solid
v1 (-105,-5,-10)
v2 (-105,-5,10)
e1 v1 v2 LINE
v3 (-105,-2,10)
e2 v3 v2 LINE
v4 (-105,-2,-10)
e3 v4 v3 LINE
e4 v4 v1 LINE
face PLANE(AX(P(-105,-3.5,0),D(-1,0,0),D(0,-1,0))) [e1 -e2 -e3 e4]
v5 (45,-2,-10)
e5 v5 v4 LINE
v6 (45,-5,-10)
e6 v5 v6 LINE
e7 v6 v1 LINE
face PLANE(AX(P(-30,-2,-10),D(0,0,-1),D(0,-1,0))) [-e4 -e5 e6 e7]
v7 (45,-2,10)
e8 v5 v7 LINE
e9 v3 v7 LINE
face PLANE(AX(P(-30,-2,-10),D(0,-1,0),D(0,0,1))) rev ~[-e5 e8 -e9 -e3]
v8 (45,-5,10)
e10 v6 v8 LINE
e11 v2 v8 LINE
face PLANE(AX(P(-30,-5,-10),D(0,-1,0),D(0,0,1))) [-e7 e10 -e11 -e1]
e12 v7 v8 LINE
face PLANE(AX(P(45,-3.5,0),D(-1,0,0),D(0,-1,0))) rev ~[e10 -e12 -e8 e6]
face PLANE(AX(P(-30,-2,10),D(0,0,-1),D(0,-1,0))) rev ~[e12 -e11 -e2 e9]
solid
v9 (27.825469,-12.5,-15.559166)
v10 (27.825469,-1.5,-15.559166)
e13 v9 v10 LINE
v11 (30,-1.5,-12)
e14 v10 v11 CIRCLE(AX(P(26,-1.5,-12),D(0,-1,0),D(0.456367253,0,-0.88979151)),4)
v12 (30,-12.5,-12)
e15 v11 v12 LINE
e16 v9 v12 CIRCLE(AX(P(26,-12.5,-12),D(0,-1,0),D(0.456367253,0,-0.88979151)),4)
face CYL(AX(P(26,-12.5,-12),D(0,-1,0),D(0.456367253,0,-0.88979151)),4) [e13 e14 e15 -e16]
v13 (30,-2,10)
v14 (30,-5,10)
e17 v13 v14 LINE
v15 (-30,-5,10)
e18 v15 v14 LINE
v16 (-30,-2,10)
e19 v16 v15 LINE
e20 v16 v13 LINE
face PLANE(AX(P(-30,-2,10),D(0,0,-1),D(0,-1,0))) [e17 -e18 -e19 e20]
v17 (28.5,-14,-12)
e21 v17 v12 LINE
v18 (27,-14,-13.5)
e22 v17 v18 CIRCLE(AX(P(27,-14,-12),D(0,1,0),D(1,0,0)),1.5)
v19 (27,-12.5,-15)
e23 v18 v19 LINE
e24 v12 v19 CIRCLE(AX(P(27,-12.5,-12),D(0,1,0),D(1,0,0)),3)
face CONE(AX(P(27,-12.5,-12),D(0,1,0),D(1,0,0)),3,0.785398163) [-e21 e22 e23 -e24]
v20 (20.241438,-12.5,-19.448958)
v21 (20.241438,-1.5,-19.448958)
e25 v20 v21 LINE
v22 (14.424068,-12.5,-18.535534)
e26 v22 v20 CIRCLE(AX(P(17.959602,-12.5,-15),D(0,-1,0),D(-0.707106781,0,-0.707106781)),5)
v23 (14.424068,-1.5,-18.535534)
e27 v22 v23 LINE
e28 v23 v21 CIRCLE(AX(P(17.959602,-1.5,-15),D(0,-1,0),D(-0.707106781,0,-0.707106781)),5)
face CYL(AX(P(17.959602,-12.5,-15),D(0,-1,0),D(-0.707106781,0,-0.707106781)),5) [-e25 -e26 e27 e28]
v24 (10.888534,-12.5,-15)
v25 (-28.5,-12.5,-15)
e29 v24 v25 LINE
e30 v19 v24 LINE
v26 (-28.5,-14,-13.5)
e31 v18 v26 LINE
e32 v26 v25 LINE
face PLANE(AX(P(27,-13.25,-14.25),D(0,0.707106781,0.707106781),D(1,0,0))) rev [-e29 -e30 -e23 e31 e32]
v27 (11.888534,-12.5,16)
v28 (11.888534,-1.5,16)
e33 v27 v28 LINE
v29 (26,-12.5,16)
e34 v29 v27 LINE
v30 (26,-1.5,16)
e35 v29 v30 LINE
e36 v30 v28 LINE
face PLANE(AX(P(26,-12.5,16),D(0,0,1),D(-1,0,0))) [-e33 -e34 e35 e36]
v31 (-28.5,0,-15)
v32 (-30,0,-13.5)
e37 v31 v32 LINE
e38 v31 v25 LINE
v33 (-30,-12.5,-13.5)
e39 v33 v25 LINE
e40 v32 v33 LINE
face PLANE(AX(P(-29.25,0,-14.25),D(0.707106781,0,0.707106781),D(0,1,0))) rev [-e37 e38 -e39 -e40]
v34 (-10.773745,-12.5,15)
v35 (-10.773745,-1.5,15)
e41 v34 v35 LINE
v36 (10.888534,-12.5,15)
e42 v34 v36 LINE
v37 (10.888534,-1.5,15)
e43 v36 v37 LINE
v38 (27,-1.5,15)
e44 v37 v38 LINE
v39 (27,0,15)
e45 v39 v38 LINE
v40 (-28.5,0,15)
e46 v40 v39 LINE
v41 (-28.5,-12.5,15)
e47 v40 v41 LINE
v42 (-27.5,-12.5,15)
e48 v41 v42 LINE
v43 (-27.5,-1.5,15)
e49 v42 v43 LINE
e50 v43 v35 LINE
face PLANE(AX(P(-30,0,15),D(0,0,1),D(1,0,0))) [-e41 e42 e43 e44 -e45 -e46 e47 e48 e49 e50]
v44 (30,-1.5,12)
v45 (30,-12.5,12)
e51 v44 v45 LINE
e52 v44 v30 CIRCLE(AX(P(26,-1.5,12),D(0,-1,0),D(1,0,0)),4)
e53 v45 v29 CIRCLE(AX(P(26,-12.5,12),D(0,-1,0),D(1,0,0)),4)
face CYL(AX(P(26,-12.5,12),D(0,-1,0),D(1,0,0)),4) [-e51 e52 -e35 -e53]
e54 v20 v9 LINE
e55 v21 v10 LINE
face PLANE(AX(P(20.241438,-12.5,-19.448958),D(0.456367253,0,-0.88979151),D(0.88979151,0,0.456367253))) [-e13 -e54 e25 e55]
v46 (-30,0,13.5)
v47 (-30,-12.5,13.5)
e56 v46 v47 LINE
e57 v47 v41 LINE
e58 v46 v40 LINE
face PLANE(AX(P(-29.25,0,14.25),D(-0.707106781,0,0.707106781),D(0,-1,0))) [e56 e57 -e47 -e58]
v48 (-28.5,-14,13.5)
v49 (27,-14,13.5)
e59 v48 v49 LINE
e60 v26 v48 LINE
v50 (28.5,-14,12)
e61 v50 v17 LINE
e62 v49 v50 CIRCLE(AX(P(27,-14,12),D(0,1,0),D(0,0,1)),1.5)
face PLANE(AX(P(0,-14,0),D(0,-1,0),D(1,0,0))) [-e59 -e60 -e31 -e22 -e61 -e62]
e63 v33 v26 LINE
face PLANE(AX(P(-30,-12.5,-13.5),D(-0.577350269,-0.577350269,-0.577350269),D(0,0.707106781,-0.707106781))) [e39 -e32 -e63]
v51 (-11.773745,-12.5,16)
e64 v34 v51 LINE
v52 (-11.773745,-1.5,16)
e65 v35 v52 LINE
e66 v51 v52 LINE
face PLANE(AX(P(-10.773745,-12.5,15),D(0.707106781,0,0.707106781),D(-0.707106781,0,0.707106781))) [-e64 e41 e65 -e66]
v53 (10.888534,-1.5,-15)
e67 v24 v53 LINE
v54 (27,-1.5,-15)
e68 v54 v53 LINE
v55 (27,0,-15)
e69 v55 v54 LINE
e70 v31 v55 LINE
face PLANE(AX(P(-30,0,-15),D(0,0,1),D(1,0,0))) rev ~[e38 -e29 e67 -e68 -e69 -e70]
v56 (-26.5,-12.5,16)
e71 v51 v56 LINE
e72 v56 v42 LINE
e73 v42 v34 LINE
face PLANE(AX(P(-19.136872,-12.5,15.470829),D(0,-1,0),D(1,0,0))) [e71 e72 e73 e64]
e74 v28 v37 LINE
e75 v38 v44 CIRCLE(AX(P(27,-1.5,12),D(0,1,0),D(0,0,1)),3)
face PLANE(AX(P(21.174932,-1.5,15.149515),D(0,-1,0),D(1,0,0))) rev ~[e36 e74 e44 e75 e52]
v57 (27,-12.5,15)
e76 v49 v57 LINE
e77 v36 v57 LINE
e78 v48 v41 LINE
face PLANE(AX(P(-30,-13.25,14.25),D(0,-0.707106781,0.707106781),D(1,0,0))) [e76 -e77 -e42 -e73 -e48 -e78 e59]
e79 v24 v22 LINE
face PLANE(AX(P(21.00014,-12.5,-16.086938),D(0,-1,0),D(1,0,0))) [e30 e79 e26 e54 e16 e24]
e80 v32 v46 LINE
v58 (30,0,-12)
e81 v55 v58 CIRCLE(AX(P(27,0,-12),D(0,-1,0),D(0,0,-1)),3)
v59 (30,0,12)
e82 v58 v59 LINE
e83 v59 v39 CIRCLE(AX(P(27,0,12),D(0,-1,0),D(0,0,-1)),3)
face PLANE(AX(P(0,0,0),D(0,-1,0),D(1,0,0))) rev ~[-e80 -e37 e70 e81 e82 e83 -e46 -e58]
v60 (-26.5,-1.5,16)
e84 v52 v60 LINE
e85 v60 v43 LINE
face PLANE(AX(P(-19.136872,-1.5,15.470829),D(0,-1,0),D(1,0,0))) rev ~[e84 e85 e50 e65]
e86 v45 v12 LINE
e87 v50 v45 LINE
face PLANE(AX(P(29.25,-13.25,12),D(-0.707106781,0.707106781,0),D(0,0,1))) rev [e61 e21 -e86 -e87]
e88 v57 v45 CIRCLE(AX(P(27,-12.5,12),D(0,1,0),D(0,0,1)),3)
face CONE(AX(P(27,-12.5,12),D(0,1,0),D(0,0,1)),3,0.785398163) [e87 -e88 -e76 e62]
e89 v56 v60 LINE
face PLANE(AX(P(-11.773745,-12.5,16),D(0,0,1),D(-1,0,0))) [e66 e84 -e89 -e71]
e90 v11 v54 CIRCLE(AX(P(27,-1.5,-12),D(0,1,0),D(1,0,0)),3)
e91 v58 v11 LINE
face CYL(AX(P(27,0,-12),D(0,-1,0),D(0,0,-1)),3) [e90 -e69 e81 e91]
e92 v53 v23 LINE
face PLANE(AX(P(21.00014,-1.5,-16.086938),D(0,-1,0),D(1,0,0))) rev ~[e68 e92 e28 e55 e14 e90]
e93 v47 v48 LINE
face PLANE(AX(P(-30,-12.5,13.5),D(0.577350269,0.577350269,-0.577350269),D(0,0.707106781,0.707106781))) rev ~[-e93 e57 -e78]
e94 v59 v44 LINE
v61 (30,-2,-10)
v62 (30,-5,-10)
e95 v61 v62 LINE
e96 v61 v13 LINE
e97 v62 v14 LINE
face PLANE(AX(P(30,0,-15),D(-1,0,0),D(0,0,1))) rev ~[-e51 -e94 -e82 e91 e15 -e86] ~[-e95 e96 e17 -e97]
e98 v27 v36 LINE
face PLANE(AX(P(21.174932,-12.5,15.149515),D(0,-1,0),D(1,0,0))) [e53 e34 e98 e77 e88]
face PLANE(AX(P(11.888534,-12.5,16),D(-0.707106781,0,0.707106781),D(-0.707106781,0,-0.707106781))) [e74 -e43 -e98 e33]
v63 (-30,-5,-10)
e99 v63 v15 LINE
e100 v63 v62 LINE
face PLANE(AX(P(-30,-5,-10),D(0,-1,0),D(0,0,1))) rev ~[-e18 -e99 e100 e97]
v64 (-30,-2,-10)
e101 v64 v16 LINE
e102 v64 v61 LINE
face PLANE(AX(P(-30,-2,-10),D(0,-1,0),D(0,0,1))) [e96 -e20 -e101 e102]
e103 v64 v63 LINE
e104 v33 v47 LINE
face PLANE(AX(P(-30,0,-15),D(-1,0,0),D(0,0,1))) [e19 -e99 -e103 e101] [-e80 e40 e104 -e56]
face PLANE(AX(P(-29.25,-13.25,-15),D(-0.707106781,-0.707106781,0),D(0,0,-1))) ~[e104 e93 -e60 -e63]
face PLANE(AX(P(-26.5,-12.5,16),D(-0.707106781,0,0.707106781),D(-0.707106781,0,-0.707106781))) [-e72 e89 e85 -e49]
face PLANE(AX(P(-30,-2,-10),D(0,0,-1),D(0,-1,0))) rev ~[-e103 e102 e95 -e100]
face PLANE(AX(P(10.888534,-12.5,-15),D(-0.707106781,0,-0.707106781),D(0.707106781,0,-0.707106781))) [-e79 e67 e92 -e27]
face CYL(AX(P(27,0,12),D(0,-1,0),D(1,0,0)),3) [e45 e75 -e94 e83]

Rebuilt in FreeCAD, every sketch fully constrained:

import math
import FreeCAD as App
import Part
import Sketcher

V = App.Vector
Q = App.Units.Quantity


def edges_at(feature, points):
    """Names of the edges that pass closest to the given points."""
    edges = feature.Shape.Edges
    near = lambda p: min(range(len(edges)), key=lambda i: edges[i].distToShape(Part.Vertex(*p))[0])
    return sorted({f"Edge{near(p) + 1}" for p in points})

doc = App.newDocument("Part")
params = doc.addObject("Spreadsheet::Sheet", "Params")
for row, (alias, value) in enumerate([
    ("sketch1_width", "60 mm"),
    ("sketch1_height", "30 mm"),
    ("pad1_length", "14 mm"),
    ("fillet_radius", "3 mm"),
    ("chamfer_size", "1.5 mm"),
    ("sketch2_radius", "3 mm"),
    ("sketch2_radius2", "5 mm"),
    ("sketch2_radius3", "4 mm"),
    ("pad2_length", "11 mm"),
    ("sketch3_width", "3 mm"),
    ("sketch3_height", "20 mm"),
    ("sketch4_width", "3 mm"),
    ("sketch4_height", "20 mm"),
    ("pad3_length", "150 mm"),
], start=1):
    params.set(f"A{row}", alias)
    params.set(f"B{row}", "=" + value)
    params.setAlias(f"B{row}", alias)

body = doc.addObject("PartDesign::Body", "Body")

sketch1 = body.newObject("Sketcher::SketchObject", "Sketch")
sketch1.AttachmentSupport = (doc.getObject("XZ_Plane"), [""])
sketch1.MapMode = "FlatFace"
sketch1.addGeometry(Part.LineSegment(V(-30, 15, 0), V(-30, -15, 0)), False)
sketch1.addGeometry(Part.LineSegment(V(-30, -15, 0), V(30, -15, 0)), False)
sketch1.addGeometry(Part.LineSegment(V(30, -15, 0), V(30, 15, 0)), False)
sketch1.addGeometry(Part.LineSegment(V(30, 15, 0), V(-30, 15, 0)), False)
sketch1.addConstraint(Sketcher.Constraint("Coincident", 0, 2, 1, 1))
sketch1.addConstraint(Sketcher.Constraint("Coincident", 1, 2, 2, 1))
sketch1.addConstraint(Sketcher.Constraint("Coincident", 2, 2, 3, 1))
sketch1.addConstraint(Sketcher.Constraint("Coincident", 3, 2, 0, 1))
sketch1.addConstraint(Sketcher.Constraint("Vertical", 0))
sketch1.addConstraint(Sketcher.Constraint("Horizontal", 1))
sketch1.addConstraint(Sketcher.Constraint("Vertical", 2))
sketch1.addConstraint(Sketcher.Constraint("Horizontal", 3))
sketch1.addConstraint(Sketcher.Constraint("Symmetric", 0, 2, 2, 2, -1, 1))
sketch1.addConstraint(Sketcher.Constraint("DistanceX", 1, 1, 1, 2, Q("60 mm")))
sketch1.addConstraint(Sketcher.Constraint("DistanceY", 0, 2, 0, 1, Q("30 mm")))
sketch1.setExpression("Constraints[9]", "Params.sketch1_width")
sketch1.setExpression("Constraints[10]", "Params.sketch1_height")
pad1 = body.newObject("PartDesign::Pad", "Pad")
pad1.Profile = sketch1
pad1.setExpression("Length", "Params.pad1_length")
doc.recompute()

fillet = body.newObject("PartDesign::Fillet", "Fillet")
fillet.Base = (pad1, edges_at(pad1, [(30, -7, -15), (30, -7, 15)]))
fillet.setExpression("Radius", "Params.fillet_radius")
doc.recompute()

chamfer = body.newObject("PartDesign::Chamfer", "Chamfer")
chamfer.Base = (fillet, edges_at(fillet, [
    (-1.5, -14, 15),
    (29.121, -14, 14.121),
    (30, -14, 0),
    (29.121, -14, -14.121),
    (-1.5, -14, -15),
    (-30, -14, 0),
    (-30, -7, 15),
    (-30, -7, -15),
]))
chamfer.setExpression("Size", "Params.chamfer_size")

sketch2 = body.newObject("Sketcher::SketchObject", "Sketch001")
sketch2.AttachmentSupport = (doc.getObject("XZ_Plane"), [""])
sketch2.MapMode = "FlatFace"
sketch2.AttachmentOffset = App.Placement(V(0, 0, 12.5), App.Rotation())
sketch2.addGeometry(Part.ArcOfCircle(Part.Circle(V(27, -12, 0), V(0, 0, 1), 3), math.radians(-90), math.radians(0)), False)
sketch2.addGeometry(Part.LineSegment(V(27, -15, 0), V(10.888534, -15, 0)), False)
sketch2.addGeometry(Part.LineSegment(V(10.888534, -15, 0), V(14.424068, -18.535534, 0)), False)
sketch2.addGeometry(Part.ArcOfCircle(Part.Circle(V(17.959602, -15, 0), V(0, 0, 1), 5), math.radians(-135), math.radians(-62.84706)), False)
sketch2.addGeometry(Part.LineSegment(V(20.241438, -19.448958, 0), V(27.825469, -15.559166, 0)), False)
sketch2.addGeometry(Part.ArcOfCircle(Part.Circle(V(26, -12, 0), V(0, 0, 1), 4), math.radians(-62.84706), math.radians(0)), False)
sketch2.addGeometry(Part.LineSegment(V(11.888534, 16, 0), V(10.888534, 15, 0)), False)
sketch2.addGeometry(Part.LineSegment(V(10.888534, 15, 0), V(27, 15, 0)), False)
sketch2.addGeometry(Part.ArcOfCircle(Part.Circle(V(27, 12, 0), V(0, 0, 1), 3), math.radians(0), math.radians(90)), False)
sketch2.addGeometry(Part.ArcOfCircle(Part.Circle(V(26, 12, 0), V(0, 0, 1), 4), math.radians(0), math.radians(90)), False)
sketch2.addGeometry(Part.LineSegment(V(26, 16, 0), V(11.888534, 16, 0)), False)
sketch2.addGeometry(Part.LineSegment(V(-26.5, 16, 0), V(-27.5, 15, 0)), False)
sketch2.addGeometry(Part.LineSegment(V(-27.5, 15, 0), V(-10.773745, 15, 0)), False)
sketch2.addGeometry(Part.LineSegment(V(-10.773745, 15, 0), V(-11.773745, 16, 0)), False)
sketch2.addGeometry(Part.LineSegment(V(-11.773745, 16, 0), V(-26.5, 16, 0)), False)
sketch2.addConstraint(Sketcher.Constraint("Tangent", 0, 1, 1, 1))
sketch2.addConstraint(Sketcher.Constraint("Coincident", 1, 2, 2, 1))
sketch2.addConstraint(Sketcher.Constraint("Tangent", 2, 2, 3, 1))
sketch2.addConstraint(Sketcher.Constraint("Tangent", 3, 2, 4, 1))
sketch2.addConstraint(Sketcher.Constraint("Tangent", 4, 2, 5, 1))
sketch2.addConstraint(Sketcher.Constraint("Tangent", 5, 2, 0, 2))
sketch2.addConstraint(Sketcher.Constraint("Coincident", 6, 2, 7, 1))
sketch2.addConstraint(Sketcher.Constraint("Tangent", 7, 2, 8, 2))
sketch2.addConstraint(Sketcher.Constraint("Tangent", 8, 1, 9, 1))
sketch2.addConstraint(Sketcher.Constraint("Tangent", 9, 2, 10, 1))
sketch2.addConstraint(Sketcher.Constraint("Coincident", 10, 2, 6, 1))
sketch2.addConstraint(Sketcher.Constraint("Coincident", 11, 2, 12, 1))
sketch2.addConstraint(Sketcher.Constraint("Coincident", 12, 2, 13, 1))
sketch2.addConstraint(Sketcher.Constraint("Coincident", 13, 2, 14, 1))
sketch2.addConstraint(Sketcher.Constraint("Coincident", 14, 2, 11, 1))
sketch2.addConstraint(Sketcher.Constraint("Horizontal", 1))
sketch2.addConstraint(Sketcher.Constraint("Horizontal", 7))
sketch2.addConstraint(Sketcher.Constraint("Horizontal", 10))
sketch2.addConstraint(Sketcher.Constraint("Horizontal", 12))
sketch2.addConstraint(Sketcher.Constraint("Horizontal", 14))
sketch2.addConstraint(Sketcher.Constraint("Equal", 0, 8))
sketch2.addConstraint(Sketcher.Constraint("Equal", 5, 9))
sketch2.addConstraint(Sketcher.Constraint("Symmetric", 0, 3, 8, 3, -1))
sketch2.addConstraint(Sketcher.Constraint("Perpendicular", 2, 6))
sketch2.addConstraint(Sketcher.Constraint("Parallel", 6, 11))
sketch2.addConstraint(Sketcher.Constraint("Perpendicular", 11, 13))
sketch2.addConstraint(Sketcher.Constraint("Horizontal", 0, 3, 5, 3))
sketch2.addConstraint(Sketcher.Constraint("Horizontal", 8, 3, 9, 3))
sketch2.addConstraint(Sketcher.Constraint("Horizontal", 3, 3, 0, 1))
sketch2.addConstraint(Sketcher.Constraint("Horizontal", 7, 2, 11, 2))
sketch2.addConstraint(Sketcher.Constraint("Horizontal", 10, 2, 13, 2))
sketch2.addConstraint(Sketcher.Constraint("Vertical", 1, 2, 6, 2))
sketch2.addConstraint(Sketcher.Constraint("Equal", 11, 13))
sketch2.addConstraint(Sketcher.Constraint("Radius", 0, Q("3 mm")))
sketch2.addConstraint(Sketcher.Constraint("Radius", 3, Q("5 mm")))
sketch2.addConstraint(Sketcher.Constraint("Radius", 5, Q("4 mm")))
sketch2.addConstraint(Sketcher.Constraint("DistanceX", -1, 1, 0, 3, Q("27 mm")))
sketch2.addConstraint(Sketcher.Constraint("DistanceY", 0, 3, -1, 1, Q("12 mm")))
sketch2.addConstraint(Sketcher.Constraint("DistanceX", 11, 2, -1, 1, Q("27.5 mm")))
sketch2.addConstraint(Sketcher.Constraint("DistanceX", -1, 1, 3, 3, Q("17.959602 mm")))
sketch2.addConstraint(Sketcher.Constraint("DistanceX", 12, 1, 12, 2, Q("16.726255 mm")))
sketch2.setExpression("Constraints[33]", "Params.sketch2_radius")
sketch2.setExpression("Constraints[34]", "Params.sketch2_radius2")
sketch2.setExpression("Constraints[35]", "Params.sketch2_radius3")
pad2 = body.newObject("PartDesign::Pad", "Pad001")
pad2.Profile = sketch2
pad2.setExpression("Length", "Params.pad2_length")
pad2.Reversed = True

sketch3 = body.newObject("Sketcher::SketchObject", "Sketch002")
sketch3.AttachmentSupport = (doc.getObject("YZ_Plane"), [""])
sketch3.MapMode = "FlatFace"
sketch3.AttachmentOffset = App.Placement(V(0, 0, -30), App.Rotation())
sketch3.addGeometry(Part.LineSegment(V(-2, 10, 0), V(-2, -10, 0)), False)
sketch3.addGeometry(Part.LineSegment(V(-2, -10, 0), V(-5, -10, 0)), False)
sketch3.addGeometry(Part.LineSegment(V(-5, -10, 0), V(-5, 10, 0)), False)
sketch3.addGeometry(Part.LineSegment(V(-5, 10, 0), V(-2, 10, 0)), False)
sketch3.addConstraint(Sketcher.Constraint("Coincident", 0, 2, 1, 1))
sketch3.addConstraint(Sketcher.Constraint("Coincident", 1, 2, 2, 1))
sketch3.addConstraint(Sketcher.Constraint("Coincident", 2, 2, 3, 1))
sketch3.addConstraint(Sketcher.Constraint("Coincident", 3, 2, 0, 1))
sketch3.addConstraint(Sketcher.Constraint("Vertical", 0))
sketch3.addConstraint(Sketcher.Constraint("Horizontal", 1))
sketch3.addConstraint(Sketcher.Constraint("Vertical", 2))
sketch3.addConstraint(Sketcher.Constraint("Horizontal", 3))
sketch3.addConstraint(Sketcher.Constraint("DistanceX", 1, 2, 1, 1, Q("3 mm")))
sketch3.addConstraint(Sketcher.Constraint("DistanceY", 0, 2, 0, 1, Q("20 mm")))
sketch3.addConstraint(Sketcher.Constraint("DistanceX", 0, 2, -1, 1, Q("2 mm")))
sketch3.addConstraint(Sketcher.Constraint("DistanceY", 0, 2, -1, 1, Q("10 mm")))
sketch3.setExpression("Constraints[8]", "Params.sketch3_width")
sketch3.setExpression("Constraints[9]", "Params.sketch3_height")
pocket1 = body.newObject("PartDesign::Pocket", "Pocket")
pocket1.Profile = sketch3
pocket1.Type = "ThroughAll"
pocket1.Reversed = True
body2 = doc.addObject("PartDesign::Body", "Body001")

sketch4 = body2.newObject("Sketcher::SketchObject", "Sketch003")
sketch4.AttachmentSupport = (doc.getObject("YZ_Plane001"), [""])
sketch4.MapMode = "FlatFace"
sketch4.AttachmentOffset = App.Placement(V(0, 0, -30), App.Rotation())
sketch4.addGeometry(Part.LineSegment(V(-2, 10, 0), V(-2, -10, 0)), False)
sketch4.addGeometry(Part.LineSegment(V(-2, -10, 0), V(-5, -10, 0)), False)
sketch4.addGeometry(Part.LineSegment(V(-5, -10, 0), V(-5, 10, 0)), False)
sketch4.addGeometry(Part.LineSegment(V(-5, 10, 0), V(-2, 10, 0)), False)
sketch4.addConstraint(Sketcher.Constraint("Coincident", 0, 2, 1, 1))
sketch4.addConstraint(Sketcher.Constraint("Coincident", 1, 2, 2, 1))
sketch4.addConstraint(Sketcher.Constraint("Coincident", 2, 2, 3, 1))
sketch4.addConstraint(Sketcher.Constraint("Coincident", 3, 2, 0, 1))
sketch4.addConstraint(Sketcher.Constraint("Vertical", 0))
sketch4.addConstraint(Sketcher.Constraint("Horizontal", 1))
sketch4.addConstraint(Sketcher.Constraint("Vertical", 2))
sketch4.addConstraint(Sketcher.Constraint("Horizontal", 3))
sketch4.addConstraint(Sketcher.Constraint("DistanceX", 1, 2, 1, 1, Q("3 mm")))
sketch4.addConstraint(Sketcher.Constraint("DistanceY", 0, 2, 0, 1, Q("20 mm")))
sketch4.addConstraint(Sketcher.Constraint("DistanceX", 0, 2, -1, 1, Q("2 mm")))
sketch4.addConstraint(Sketcher.Constraint("DistanceY", 0, 2, -1, 1, Q("10 mm")))
sketch4.setExpression("Constraints[8]", "Params.sketch4_width")
sketch4.setExpression("Constraints[9]", "Params.sketch4_height")
pad3 = body2.newObject("PartDesign::Pad", "Pad002")
pad3.Profile = sketch4
pad3.setExpression("Length", "Params.pad3_length")
pad3.Midplane = True

doc.recompute()
